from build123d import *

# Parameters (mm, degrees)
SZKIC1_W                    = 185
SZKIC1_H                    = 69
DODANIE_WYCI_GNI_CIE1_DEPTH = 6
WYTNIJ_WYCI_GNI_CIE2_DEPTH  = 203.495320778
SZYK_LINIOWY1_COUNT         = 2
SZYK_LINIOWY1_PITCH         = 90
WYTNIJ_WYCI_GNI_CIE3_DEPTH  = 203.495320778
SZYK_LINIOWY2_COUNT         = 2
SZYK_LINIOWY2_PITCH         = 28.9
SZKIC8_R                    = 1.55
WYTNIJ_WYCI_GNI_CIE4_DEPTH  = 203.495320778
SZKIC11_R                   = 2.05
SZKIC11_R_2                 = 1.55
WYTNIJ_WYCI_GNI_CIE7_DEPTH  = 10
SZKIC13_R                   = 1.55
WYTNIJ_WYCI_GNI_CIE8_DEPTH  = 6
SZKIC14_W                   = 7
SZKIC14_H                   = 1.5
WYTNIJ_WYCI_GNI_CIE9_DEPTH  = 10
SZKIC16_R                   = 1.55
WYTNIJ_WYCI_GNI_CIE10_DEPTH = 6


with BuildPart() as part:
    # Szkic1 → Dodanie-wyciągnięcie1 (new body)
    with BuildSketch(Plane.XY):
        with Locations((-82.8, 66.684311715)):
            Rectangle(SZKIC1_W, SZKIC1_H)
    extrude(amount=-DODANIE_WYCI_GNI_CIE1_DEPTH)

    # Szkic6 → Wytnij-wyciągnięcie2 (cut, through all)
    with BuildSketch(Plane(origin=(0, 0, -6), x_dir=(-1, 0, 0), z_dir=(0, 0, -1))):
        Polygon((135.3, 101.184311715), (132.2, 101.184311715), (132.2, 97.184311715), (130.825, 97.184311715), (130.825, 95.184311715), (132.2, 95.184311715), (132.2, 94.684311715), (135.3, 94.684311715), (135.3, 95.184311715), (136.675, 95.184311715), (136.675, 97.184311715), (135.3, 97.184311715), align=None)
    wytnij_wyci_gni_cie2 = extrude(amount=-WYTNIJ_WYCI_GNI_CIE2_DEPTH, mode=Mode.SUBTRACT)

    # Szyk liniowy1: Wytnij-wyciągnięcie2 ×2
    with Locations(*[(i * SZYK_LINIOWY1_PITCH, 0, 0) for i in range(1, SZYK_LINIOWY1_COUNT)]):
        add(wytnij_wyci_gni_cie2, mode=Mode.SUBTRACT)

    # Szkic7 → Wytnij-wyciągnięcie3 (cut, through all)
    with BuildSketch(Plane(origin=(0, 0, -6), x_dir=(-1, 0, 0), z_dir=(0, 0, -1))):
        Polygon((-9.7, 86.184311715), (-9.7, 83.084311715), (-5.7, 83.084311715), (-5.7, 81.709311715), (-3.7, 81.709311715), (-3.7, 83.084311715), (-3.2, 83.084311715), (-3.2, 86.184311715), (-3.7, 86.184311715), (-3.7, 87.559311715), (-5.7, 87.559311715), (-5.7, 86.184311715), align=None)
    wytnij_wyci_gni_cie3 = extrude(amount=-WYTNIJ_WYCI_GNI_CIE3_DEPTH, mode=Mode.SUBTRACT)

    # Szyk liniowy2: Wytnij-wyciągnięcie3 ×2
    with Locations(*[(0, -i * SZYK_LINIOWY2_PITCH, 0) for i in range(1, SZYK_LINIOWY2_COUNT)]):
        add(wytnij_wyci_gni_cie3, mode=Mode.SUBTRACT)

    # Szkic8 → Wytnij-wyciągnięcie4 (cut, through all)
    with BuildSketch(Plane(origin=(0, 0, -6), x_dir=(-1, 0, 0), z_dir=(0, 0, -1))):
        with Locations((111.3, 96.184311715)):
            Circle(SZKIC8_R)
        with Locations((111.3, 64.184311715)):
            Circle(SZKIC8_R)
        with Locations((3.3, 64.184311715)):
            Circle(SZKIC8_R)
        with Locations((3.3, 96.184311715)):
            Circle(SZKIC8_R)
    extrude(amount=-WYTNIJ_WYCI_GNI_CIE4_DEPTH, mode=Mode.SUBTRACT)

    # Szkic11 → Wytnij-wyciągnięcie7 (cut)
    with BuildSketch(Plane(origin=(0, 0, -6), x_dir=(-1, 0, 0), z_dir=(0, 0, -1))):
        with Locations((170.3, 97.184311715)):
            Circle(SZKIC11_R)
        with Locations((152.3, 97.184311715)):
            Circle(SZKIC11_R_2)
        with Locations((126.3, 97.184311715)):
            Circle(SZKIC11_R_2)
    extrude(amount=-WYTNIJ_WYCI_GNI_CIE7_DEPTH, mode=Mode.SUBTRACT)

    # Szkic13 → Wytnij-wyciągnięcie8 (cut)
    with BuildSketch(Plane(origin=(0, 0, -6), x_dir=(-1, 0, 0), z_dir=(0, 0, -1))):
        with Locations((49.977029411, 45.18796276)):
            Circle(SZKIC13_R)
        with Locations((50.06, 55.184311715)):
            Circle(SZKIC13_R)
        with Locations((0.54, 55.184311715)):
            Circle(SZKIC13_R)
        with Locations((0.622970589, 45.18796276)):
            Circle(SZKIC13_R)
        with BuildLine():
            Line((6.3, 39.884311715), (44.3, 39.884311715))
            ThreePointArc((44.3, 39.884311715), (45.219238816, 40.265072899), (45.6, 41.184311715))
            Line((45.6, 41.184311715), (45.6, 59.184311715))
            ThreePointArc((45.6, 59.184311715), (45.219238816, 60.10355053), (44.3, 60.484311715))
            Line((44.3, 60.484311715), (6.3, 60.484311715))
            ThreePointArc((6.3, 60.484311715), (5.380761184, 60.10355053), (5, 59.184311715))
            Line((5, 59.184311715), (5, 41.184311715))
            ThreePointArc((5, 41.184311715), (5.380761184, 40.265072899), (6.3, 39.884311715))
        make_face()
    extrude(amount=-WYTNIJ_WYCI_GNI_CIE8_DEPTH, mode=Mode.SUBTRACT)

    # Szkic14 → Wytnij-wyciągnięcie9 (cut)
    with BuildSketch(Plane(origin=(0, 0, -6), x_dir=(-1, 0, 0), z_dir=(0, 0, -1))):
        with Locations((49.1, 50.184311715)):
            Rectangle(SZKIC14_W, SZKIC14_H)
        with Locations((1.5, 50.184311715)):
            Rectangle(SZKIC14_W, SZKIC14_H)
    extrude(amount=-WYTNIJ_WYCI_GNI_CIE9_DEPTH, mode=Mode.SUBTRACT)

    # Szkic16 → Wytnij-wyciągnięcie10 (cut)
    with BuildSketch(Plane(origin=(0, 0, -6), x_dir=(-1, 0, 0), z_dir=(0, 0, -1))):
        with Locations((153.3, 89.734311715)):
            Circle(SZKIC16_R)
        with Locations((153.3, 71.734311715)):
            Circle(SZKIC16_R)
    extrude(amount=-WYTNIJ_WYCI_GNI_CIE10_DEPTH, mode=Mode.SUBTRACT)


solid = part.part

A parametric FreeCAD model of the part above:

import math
import FreeCAD as App
import Part
import Sketcher

doc = App.newDocument("Part")
body = doc.addObject("PartDesign::Body", "Body")

sketch1 = doc.addObject("Sketcher::SketchObject", "Sketch")
body.addObject(sketch1)
sketch1.AttachmentSupport = (doc.XY_Plane, [""])
sketch1.MapMode = "FlatFace"
sketch1.addGeometry([
    Part.LineSegment(App.Vector(-175, 101, 0), App.Vector(-175, 32, 0)),
    Part.LineSegment(App.Vector(-175, 32, 0), App.Vector(10, 32, 0)),
    Part.LineSegment(App.Vector(10, 32, 0), App.Vector(10, 101, 0)),
    Part.LineSegment(App.Vector(10, 101, 0), App.Vector(-175, 101, 0)),
], False)
sketch1.addConstraint([
    Sketcher.Constraint("Coincident", 0, 2, 1, 1),
    Sketcher.Constraint("Coincident", 1, 2, 2, 1),
    Sketcher.Constraint("Coincident", 2, 2, 3, 1),
    Sketcher.Constraint("Coincident", 3, 2, 0, 1),
    Sketcher.Constraint("Vertical", 0),
    Sketcher.Constraint("Horizontal", 1),
    Sketcher.Constraint("Vertical", 2),
    Sketcher.Constraint("Horizontal", 3),
    Sketcher.Constraint("DistanceX", 1, 1, 1, 2, 185.0),
    Sketcher.Constraint("DistanceY", 0, 2, 0, 1, 69.0),
    Sketcher.Constraint("DistanceX", 0, 2, -1, 1, 175.3),
    Sketcher.Constraint("DistanceY", -1, 1, 0, 2, 32.184312),
])
pad1 = doc.addObject("PartDesign::Pad", "Pad")
body.addObject(pad1)
pad1.Profile = sketch1
pad1.Length = 6
pad1.Reversed = True

sketch2 = doc.addObject("Sketcher::SketchObject", "Sketch001")
body.addObject(sketch2)
sketch2.AttachmentSupport = (doc.XY_Plane, [""])
sketch2.MapMode = "FlatFace"
sketch2.AttachmentOffset = App.Placement(App.Vector(0, 0, -6), App.Rotation())
sketch2.addGeometry([
    Part.LineSegment(App.Vector(-135.3, 101.2, 0), App.Vector(-132.2, 101.2, 0)),
    Part.LineSegment(App.Vector(-132.2, 101.2, 0), App.Vector(-132.2, 97.2, 0)),
    Part.LineSegment(App.Vector(-132.2, 97.2, 0), App.Vector(-130.8, 97.2, 0)),
    Part.LineSegment(App.Vector(-130.8, 97.2, 0), App.Vector(-130.8, 95.2, 0)),
    Part.LineSegment(App.Vector(-130.8, 95.2, 0), App.Vector(-132.2, 95.2, 0)),
    Part.LineSegment(App.Vector(-132.2, 95.2, 0), App.Vector(-132.2, 94.7, 0)),
    Part.LineSegment(App.Vector(-132.2, 94.7, 0), App.Vector(-135.3, 94.7, 0)),
    Part.LineSegment(App.Vector(-135.3, 94.7, 0), App.Vector(-135.3, 95.2, 0)),
    Part.LineSegment(App.Vector(-135.3, 95.2, 0), App.Vector(-136.7, 95.2, 0)),
    Part.LineSegment(App.Vector(-136.7, 95.2, 0), App.Vector(-136.7, 97.2, 0)),
    Part.LineSegment(App.Vector(-136.7, 97.2, 0), App.Vector(-135.3, 97.2, 0)),
    Part.LineSegment(App.Vector(-135.3, 97.2, 0), App.Vector(-135.3, 101.2, 0)),
], False)
sketch2.addConstraint([
    Sketcher.Constraint("Coincident", 0, 2, 1, 1),
    Sketcher.Constraint("Coincident", 1, 2, 2, 1),
    Sketcher.Constraint("Coincident", 2, 2, 3, 1),
    Sketcher.Constraint("Coincident", 3, 2, 4, 1),
    Sketcher.Constraint("Coincident", 4, 2, 5, 1),
    Sketcher.Constraint("Coincident", 5, 2, 6, 1),
    Sketcher.Constraint("Coincident", 6, 2, 7, 1),
    Sketcher.Constraint("Coincident", 7, 2, 8, 1),
    Sketcher.Constraint("Coincident", 8, 2, 9, 1),
    Sketcher.Constraint("Coincident", 9, 2, 10, 1),
    Sketcher.Constraint("Coincident", 10, 2, 11, 1),
    Sketcher.Constraint("Coincident", 11, 2, 0, 1),
    Sketcher.Constraint("Horizontal", 0),
    Sketcher.Constraint("Vertical", 1),
    Sketcher.Constraint("Horizontal", 2),
    Sketcher.Constraint("Vertical", 3),
    Sketcher.Constraint("Horizontal", 4),
    Sketcher.Constraint("Vertical", 5),
    Sketcher.Constraint("Horizontal", 6),
    Sketcher.Constraint("Vertical", 7),
    Sketcher.Constraint("Horizontal", 8),
    Sketcher.Constraint("Vertical", 9),
    Sketcher.Constraint("Horizontal", 10),
    Sketcher.Constraint("Vertical", 11),
    Sketcher.Constraint("Horizontal", 4, 2, 7, 2),
    Sketcher.Constraint("Horizontal", 2, 2, 9, 2),
    Sketcher.Constraint("Vertical", 1, 2, 4, 2),
    Sketcher.Constraint("Vertical", 7, 2, 10, 2),
    Sketcher.Constraint("Equal", 4, 8),
    Sketcher.Constraint("DistanceY", 1, 2, 1, 1, 4.0),
    Sketcher.Constraint("DistanceY", 3, 2, 3, 1, 2.0),
    Sketcher.Constraint("DistanceX", 0, 1, 0, 2, 3.1),
    Sketcher.Constraint("DistanceY", 5, 2, 5, 1, 0.5),
    Sketcher.Constraint("DistanceX", 0, 2, -1, 1, 132.2),
    Sketcher.Constraint("DistanceX", 2, 1, 2, 2, 1.375),
    Sketcher.Constraint("DistanceY", -1, 1, 0, 2, 101.184312),
])
pocket1 = doc.addObject("PartDesign::Pocket", "Pocket")
body.addObject(pocket1)
pocket1.Profile = sketch2
pocket1.Type = "ThroughAll"
pocket1.Reversed = True
doc.recompute()

linearpattern = doc.addObject("PartDesign::LinearPattern", "LinearPattern")
body.addObject(linearpattern)
linearpattern.Originals = [pocket1]
linearpattern.Direction = (doc.X_Axis, [""])
linearpattern.Mode = "offset"
linearpattern.Offset = 90
linearpattern.Occurrences = 2
body.Tip = linearpattern

sketch3 = doc.addObject("Sketcher::SketchObject", "Sketch002")
body.addObject(sketch3)
sketch3.AttachmentSupport = (doc.XY_Plane, [""])
sketch3.MapMode = "FlatFace"
sketch3.AttachmentOffset = App.Placement(App.Vector(0, 0, -6), App.Rotation())
sketch3.addGeometry([
    Part.LineSegment(App.Vector(9.7, 86.2, 0), App.Vector(9.7, 83.1, 0)),
    Part.LineSegment(App.Vector(9.7, 83.1, 0), App.Vector(5.7, 83.1, 0)),
    Part.LineSegment(App.Vector(5.7, 83.1, 0), App.Vector(5.7, 81.7, 0)),
    Part.LineSegment(App.Vector(5.7, 81.7, 0), App.Vector(3.7, 81.7, 0)),
    Part.LineSegment(App.Vector(3.7, 81.7, 0), App.Vector(3.7, 83.1, 0)),
    Part.LineSegment(App.Vector(3.7, 83.1, 0), App.Vector(3.2, 83.1, 0)),
    Part.LineSegment(App.Vector(3.2, 83.1, 0), App.Vector(3.2, 86.2, 0)),
    Part.LineSegment(App.Vector(3.2, 86.2, 0), App.Vector(3.7, 86.2, 0)),
    Part.LineSegment(App.Vector(3.7, 86.2, 0), App.Vector(3.7, 87.6, 0)),
    Part.LineSegment(App.Vector(3.7, 87.6, 0), App.Vector(5.7, 87.6, 0)),
    Part.LineSegment(App.Vector(5.7, 87.6, 0), App.Vector(5.7, 86.2, 0)),
    Part.LineSegment(App.Vector(5.7, 86.2, 0), App.Vector(9.7, 86.2, 0)),
], False)
sketch3.addConstraint([
    Sketcher.Constraint("Coincident", 0, 2, 1, 1),
    Sketcher.Constraint("Coincident", 1, 2, 2, 1),
    Sketcher.Constraint("Coincident", 2, 2, 3, 1),
    Sketcher.Constraint("Coincident", 3, 2, 4, 1),
    Sketcher.Constraint("Coincident", 4, 2, 5, 1),
    Sketcher.Constraint("Coincident", 5, 2, 6, 1),
    Sketcher.Constraint("Coincident", 6, 2, 7, 1),
    Sketcher.Constraint("Coincident", 7, 2, 8, 1),
    Sketcher.Constraint("Coincident", 8, 2, 9, 1),
    Sketcher.Constraint("Coincident", 9, 2, 10, 1),
    Sketcher.Constraint("Coincident", 10, 2, 11, 1),
    Sketcher.Constraint("Coincident", 11, 2, 0, 1),
    Sketcher.Constraint("Vertical", 0),
    Sketcher.Constraint("Horizontal", 1),
    Sketcher.Constraint("Vertical", 2),
    Sketcher.Constraint("Horizontal", 3),
    Sketcher.Constraint("Vertical", 4),
    Sketcher.Constraint("Horizontal", 5),
    Sketcher.Constraint("Vertical", 6),
    Sketcher.Constraint("Horizontal", 7),
    Sketcher.Constraint("Vertical", 8),
    Sketcher.Constraint("Horizontal", 9),
    Sketcher.Constraint("Vertical", 10),
    Sketcher.Constraint("Horizontal", 11),
    Sketcher.Constraint("Horizontal", 1, 2, 4, 2),
    Sketcher.Constraint("Horizontal", 7, 2, 10, 2),
    Sketcher.Constraint("Vertical", 4, 2, 7, 2),
    Sketcher.Constraint("Vertical", 2, 2, 9, 2),
    Sketcher.Constraint("Equal", 4, 8),
    Sketcher.Constraint("DistanceX", 1, 2, 1, 1, 4.0),
    Sketcher.Constraint("DistanceX", 3, 2, 3, 1, 2.0),
    Sketcher.Constraint("DistanceX", 5, 2, 5, 1, 0.5),
    Sketcher.Constraint("DistanceY", 0, 2, 0, 1, 3.1),
    Sketcher.Constraint("DistanceX", -1, 1, 0, 2, 9.7),
    Sketcher.Constraint("DistanceY", 2, 2, 2, 1, 1.375),
    Sketcher.Constraint("DistanceY", -1, 1, 0, 2, 83.084312),
])
pocket2 = doc.addObject("PartDesign::Pocket", "Pocket001")
body.addObject(pocket2)
pocket2.Profile = sketch3
pocket2.Type = "ThroughAll"
pocket2.Reversed = True
doc.recompute()

linearpattern2 = doc.addObject("PartDesign::LinearPattern", "LinearPattern001")
body.addObject(linearpattern2)
linearpattern2.Originals = [pocket2]
linearpattern2.Direction = (doc.Y_Axis, [""])
linearpattern2.Mode = "offset"
linearpattern2.Offset = 28.9
linearpattern2.Occurrences = 2
linearpattern2.Reversed = True
body.Tip = linearpattern2

sketch4 = doc.addObject("Sketcher::SketchObject", "Sketch003")
body.addObject(sketch4)
sketch4.AttachmentSupport = (doc.XY_Plane, [""])
sketch4.MapMode = "FlatFace"
sketch4.AttachmentOffset = App.Placement(App.Vector(0, 0, -6), App.Rotation())
sketch4.addGeometry([
    Part.Circle(App.Vector(-111.3, 96.2, 0), App.Vector(0, 0, 1), 1.6),
    Part.Circle(App.Vector(-111.3, 64.2, 0), App.Vector(0, 0, 1), 1.6),
    Part.Circle(App.Vector(-3.3, 64.2, 0), App.Vector(0, 0, 1), 1.6),
    Part.Circle(App.Vector(-3.3, 96.2, 0), App.Vector(0, 0, 1), 1.6),
], False)
sketch4.addConstraint([
    Sketcher.Constraint("Equal", 0, 1),
    Sketcher.Constraint("Equal", 1, 2),
    Sketcher.Constraint("Equal", 2, 3),
    Sketcher.Constraint("Horizontal", 1, 3, 2, 3),
    Sketcher.Constraint("Horizontal", 0, 3, 3, 3),
    Sketcher.Constraint("Vertical", 0, 3, 1, 3),
    Sketcher.Constraint("Vertical", 2, 3, 3, 3),
    Sketcher.Constraint("Diameter", 0, 3.1),
    Sketcher.Constraint("DistanceY", 1, 3, 0, 3, 32.0),
    Sketcher.Constraint("DistanceX", 1, 3, 2, 3, 108.0),
    Sketcher.Constraint("DistanceX", 0, 3, -1, 1, 111.3),
    Sketcher.Constraint("DistanceY", -1, 1, 0, 3, 96.184312),
])
pocket3 = doc.addObject("PartDesign::Pocket", "Pocket002")
body.addObject(pocket3)
pocket3.Profile = sketch4
pocket3.Type = "ThroughAll"
pocket3.Reversed = True

sketch5 = doc.addObject("Sketcher::SketchObject", "Sketch004")
body.addObject(sketch5)
sketch5.AttachmentSupport = (doc.XY_Plane, [""])
sketch5.MapMode = "FlatFace"
sketch5.AttachmentOffset = App.Placement(App.Vector(0, 0, -6), App.Rotation())
sketch5.addGeometry([
    Part.Circle(App.Vector(-170.3, 97.2, 0), App.Vector(0, 0, 1), 2),
    Part.Circle(App.Vector(-152.3, 97.2, 0), App.Vector(0, 0, 1), 1.6),
    Part.Circle(App.Vector(-126.3, 97.2, 0), App.Vector(0, 0, 1), 1.6),
], False)
sketch5.addConstraint([
    Sketcher.Constraint("Equal", 1, 2),
    Sketcher.Constraint("Horizontal", 0, 3, 1, 3),
    Sketcher.Constraint("Horizontal", 1, 3, 2, 3),
    Sketcher.Constraint("Diameter", 0, 4.1),
    Sketcher.Constraint("Diameter", 1, 3.1),
    Sketcher.Constraint("DistanceX", 0, 3, 1, 3, 18.0),
    Sketcher.Constraint("DistanceX", 1, 3, 2, 3, 26.0),
    Sketcher.Constraint("DistanceX", 0, 3, -1, 1, 170.3),
    Sketcher.Constraint("DistanceY", -1, 1, 0, 3, 97.184312),
])
pocket4 = doc.addObject("PartDesign::Pocket", "Pocket003")
body.addObject(pocket4)
pocket4.Profile = sketch5
pocket4.Length = 10
pocket4.Reversed = True

sketch6 = doc.addObject("Sketcher::SketchObject", "Sketch005")
body.addObject(sketch6)
sketch6.AttachmentSupport = (doc.XY_Plane, [""])
sketch6.MapMode = "FlatFace"
sketch6.AttachmentOffset = App.Placement(App.Vector(0, 0, -6), App.Rotation())
sketch6.addGeometry([
    Part.Circle(App.Vector(-50, 45.2, 0), App.Vector(0, 0, 1), 1.6),
    Part.Circle(App.Vector(-50.1, 55.2, 0), App.Vector(0, 0, 1), 1.6),
    Part.Circle(App.Vector(-0.5, 55.2, 0), App.Vector(0, 0, 1), 1.6),
    Part.Circle(App.Vector(-0.6, 45.2, 0), App.Vector(0, 0, 1), 1.6),
    Part.LineSegment(App.Vector(-6.3, 39.9, 0), App.Vector(-44.3, 39.9, 0)),
    Part.ArcOfCircle(Part.Circle(App.Vector(-44.3, 41.2, 0), App.Vector(0, 0, 1), 1.3), math.radians(180), math.radians(270)),
    Part.LineSegment(App.Vector(-45.6, 41.2, 0), App.Vector(-45.6, 59.2, 0)),
    Part.ArcOfCircle(Part.Circle(App.Vector(-44.3, 59.2, 0), App.Vector(0, 0, 1), 1.3), math.radians(90), math.radians(180)),
    Part.LineSegment(App.Vector(-44.3, 60.5, 0), App.Vector(-6.3, 60.5, 0)),
    Part.ArcOfCircle(Part.Circle(App.Vector(-6.3, 59.2, 0), App.Vector(0, 0, 1), 1.3), math.radians(0), math.radians(90)),
    Part.LineSegment(App.Vector(-5, 59.2, 0), App.Vector(-5, 41.2, 0)),
    Part.ArcOfCircle(Part.Circle(App.Vector(-6.3, 41.2, 0), App.Vector(0, 0, 1), 1.3), math.radians(-90), math.radians(0)),
], False)
sketch6.addConstraint([
    Sketcher.Constraint("Tangent", 4, 2, 5, 2),
    Sketcher.Constraint("Tangent", 5, 1, 6, 1),
    Sketcher.Constraint("Tangent", 6, 2, 7, 2),
    Sketcher.Constraint("Tangent", 7, 1, 8, 1),
    Sketcher.Constraint("Tangent", 8, 2, 9, 2),
    Sketcher.Constraint("Tangent", 9, 1, 10, 1),
    Sketcher.Constraint("Tangent", 10, 2, 11, 2),
    Sketcher.Constraint("Tangent", 11, 1, 4, 1),
    Sketcher.Constraint("Horizontal", 4),
    Sketcher.Constraint("Vertical", 6),
    Sketcher.Constraint("Horizontal", 8),
    Sketcher.Constraint("Vertical", 10),
    Sketcher.Constraint("Equal", 0, 1),
    Sketcher.Constraint("Equal", 1, 2),
    Sketcher.Constraint("Equal", 2, 3),
    Sketcher.Constraint("Equal", 5, 7),
    Sketcher.Constraint("Equal", 7, 9),
    Sketcher.Constraint("Equal", 9, 11),
    Sketcher.Constraint("Horizontal", 1, 3, 2, 3),
    Sketcher.Constraint("Horizontal", 0, 3, 3, 3),
    Sketcher.Constraint("Diameter", 0, 3.1),
    Sketcher.Constraint("Radius", 5, 1.3),
    Sketcher.Constraint("DistanceX", 4, 2, 4, 1, 38.0),
    Sketcher.Constraint("DistanceY", 6, 1, 6, 2, 18.0),
    Sketcher.Constraint("DistanceX", 9, 1, -1, 1, 5.0),
    Sketcher.Constraint("DistanceY", 5, 3, 1, 3, 14.0),
    Sketcher.Constraint("DistanceX", 1, 3, -1, 1, 50.06),
    Sketcher.Constraint("DistanceX", 2, 3, -1, 1, 0.54),
    Sketcher.Constraint("DistanceX", 0, 3, -1, 1, 49.977029),
    Sketcher.Constraint("DistanceY", -1, 1, 1, 3, 55.184312),
    Sketcher.Constraint("DistanceX", 3, 3, -1, 1, 0.622971),
    Sketcher.Constraint("DistanceY", 0, 3, 1, 3, 9.996349),
])
pocket5 = doc.addObject("PartDesign::Pocket", "Pocket004")
body.addObject(pocket5)
pocket5.Profile = sketch6
pocket5.Length = 6
pocket5.Reversed = True

sketch7 = doc.addObject("Sketcher::SketchObject", "Sketch006")
body.addObject(sketch7)
sketch7.AttachmentSupport = (doc.XY_Plane, [""])
sketch7.MapMode = "FlatFace"
sketch7.AttachmentOffset = App.Placement(App.Vector(0, 0, -6), App.Rotation())
sketch7.addGeometry([
    Part.LineSegment(App.Vector(-45.6, 50.9, 0), App.Vector(-45.6, 49.4, 0)),
    Part.LineSegment(App.Vector(-45.6, 49.4, 0), App.Vector(-52.6, 49.4, 0)),
    Part.LineSegment(App.Vector(-52.6, 49.4, 0), App.Vector(-52.6, 50.9, 0)),
    Part.LineSegment(App.Vector(-52.6, 50.9, 0), App.Vector(-45.6, 50.9, 0)),
    Part.LineSegment(App.Vector(2, 50.9, 0), App.Vector(2, 49.4, 0)),
    Part.LineSegment(App.Vector(2, 49.4, 0), App.Vector(-5, 49.4, 0)),
    Part.LineSegment(App.Vector(-5, 49.4, 0), App.Vector(-5, 50.9, 0)),
    Part.LineSegment(App.Vector(-5, 50.9, 0), App.Vector(2, 50.9, 0)),
], False)
sketch7.addConstraint([
    Sketcher.Constraint("Coincident", 0, 2, 1, 1),
    Sketcher.Constraint("Coincident", 1, 2, 2, 1),
    Sketcher.Constraint("Coincident", 2, 2, 3, 1),
    Sketcher.Constraint("Coincident", 3, 2, 0, 1),
    Sketcher.Constraint("Coincident", 4, 2, 5, 1),
    Sketcher.Constraint("Coincident", 5, 2, 6, 1),
    Sketcher.Constraint("Coincident", 6, 2, 7, 1),
    Sketcher.Constraint("Coincident", 7, 2, 4, 1),
    Sketcher.Constraint("Vertical", 0),
    Sketcher.Constraint("Horizontal", 1),
    Sketcher.Constraint("Vertical", 2),
    Sketcher.Constraint("Horizontal", 3),
    Sketcher.Constraint("Vertical", 4),
    Sketcher.Constraint("Horizontal", 5),
    Sketcher.Constraint("Vertical", 6),
    Sketcher.Constraint("Horizontal", 7),
    Sketcher.Constraint("Horizontal", 1, 2, 4, 2),
    Sketcher.Constraint("Horizontal", 3, 2, 6, 2),
    Sketcher.Constraint("Equal", 3, 5),
    Sketcher.Constraint("DistanceX", 1, 2, 1, 1, 7.0),
    Sketcher.Constraint("DistanceY", 0, 2, 0, 1, 1.5),
    Sketcher.Constraint("DistanceX", -1, 1, 4, 2, 2.0),
    Sketcher.Constraint("DistanceX", 0, 2, -1, 1, 45.6),
    Sketcher.Constraint("DistanceY", -1, 1, 0, 2, 49.434312),
])
pocket6 = doc.addObject("PartDesign::Pocket", "Pocket005")
body.addObject(pocket6)
pocket6.Profile = sketch7
pocket6.Length = 10
pocket6.Reversed = True

sketch8 = doc.addObject("Sketcher::SketchObject", "Sketch007")
body.addObject(sketch8)
sketch8.AttachmentSupport = (doc.XY_Plane, [""])
sketch8.MapMode = "FlatFace"
sketch8.AttachmentOffset = App.Placement(App.Vector(0, 0, -6), App.Rotation())
sketch8.addGeometry([
    Part.Circle(App.Vector(-153.3, 89.7, 0), App.Vector(0, 0, 1), 1.6),
    Part.Circle(App.Vector(-153.3, 71.7, 0), App.Vector(0, 0, 1), 1.6),
], False)
sketch8.addConstraint([
    Sketcher.Constraint("Equal", 0, 1),
    Sketcher.Constraint("Vertical", 0, 3, 1, 3),
    Sketcher.Constraint("Diameter", 0, 3.1),
    Sketcher.Constraint("DistanceY", 1, 3, 0, 3, 18.0),
    Sketcher.Constraint("DistanceX", 0, 3, -1, 1, 153.3),
    Sketcher.Constraint("DistanceY", -1, 1, 0, 3, 89.734312),
])
pocket7 = doc.addObject("PartDesign::Pocket", "Pocket006")
body.addObject(pocket7)
pocket7.Profile = sketch8
pocket7.Length = 6
pocket7.Reversed = True

doc.recompute()
